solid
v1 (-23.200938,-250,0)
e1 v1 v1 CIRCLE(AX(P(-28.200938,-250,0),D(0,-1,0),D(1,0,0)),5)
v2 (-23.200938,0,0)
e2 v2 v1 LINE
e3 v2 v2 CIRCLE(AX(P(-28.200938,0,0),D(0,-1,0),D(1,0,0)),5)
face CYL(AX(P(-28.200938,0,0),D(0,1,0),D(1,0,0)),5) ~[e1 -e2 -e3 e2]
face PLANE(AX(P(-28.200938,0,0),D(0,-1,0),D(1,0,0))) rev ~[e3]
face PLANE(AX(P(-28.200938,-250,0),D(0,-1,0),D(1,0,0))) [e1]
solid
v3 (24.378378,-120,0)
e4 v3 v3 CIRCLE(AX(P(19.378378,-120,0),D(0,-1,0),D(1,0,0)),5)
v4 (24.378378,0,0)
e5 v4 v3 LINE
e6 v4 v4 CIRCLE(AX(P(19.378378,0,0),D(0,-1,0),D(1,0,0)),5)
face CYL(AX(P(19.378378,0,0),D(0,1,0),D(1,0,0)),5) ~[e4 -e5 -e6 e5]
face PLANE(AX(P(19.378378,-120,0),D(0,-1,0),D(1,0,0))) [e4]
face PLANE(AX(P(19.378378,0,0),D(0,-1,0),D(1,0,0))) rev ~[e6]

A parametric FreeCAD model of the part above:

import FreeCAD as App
import Part
import Sketcher
from FreeCAD import Vector

doc = App.newDocument("Part")
body = doc.addObject("PartDesign::Body", "Body")

# Sketch on XZ plane
sketch1 = doc.addObject("Sketcher::SketchObject", "Sketch")
body.addObject(sketch1)
sketch1.AttachmentSupport = (doc.XZ_Plane, [""])
sketch1.MapMode = "FlatFace"
sketch1.addGeometry(Part.Circle(Vector(-28, 0, 0), Vector(0, 0, 1), 5), False)
sketch1.addConstraint([
    Sketcher.Constraint("PointOnObject", 0, 3, -1),
    Sketcher.Constraint("Diameter", 0, 10.0),
    Sketcher.Constraint("DistanceX", 0, 3, -1, 1, 28.200938),
])
pad1 = doc.addObject("PartDesign::Pad", "Pad")
body.addObject(pad1)
pad1.Profile = sketch1
pad1.Length = 250
body2 = doc.addObject("PartDesign::Body", "Body001")

# Sketch on XZ plane
sketch2 = doc.addObject("Sketcher::SketchObject", "Sketch001")
body2.addObject(sketch2)
sketch2.AttachmentSupport = (doc.getObject("XZ_Plane001"), [""])
sketch2.MapMode = "FlatFace"
sketch2.addGeometry(Part.Circle(Vector(19, 0, 0), Vector(0, 0, 1), 5), False)
sketch2.addConstraint([
    Sketcher.Constraint("PointOnObject", 0, 3, -1),
    Sketcher.Constraint("Diameter", 0, 10.0),
    Sketcher.Constraint("DistanceX", -1, 1, 0, 3, 19.378378),
])
pad2 = doc.addObject("PartDesign::Pad", "Pad001")
body2.addObject(pad2)
pad2.Profile = sketch2
pad2.Length = 120

doc.recompute()
